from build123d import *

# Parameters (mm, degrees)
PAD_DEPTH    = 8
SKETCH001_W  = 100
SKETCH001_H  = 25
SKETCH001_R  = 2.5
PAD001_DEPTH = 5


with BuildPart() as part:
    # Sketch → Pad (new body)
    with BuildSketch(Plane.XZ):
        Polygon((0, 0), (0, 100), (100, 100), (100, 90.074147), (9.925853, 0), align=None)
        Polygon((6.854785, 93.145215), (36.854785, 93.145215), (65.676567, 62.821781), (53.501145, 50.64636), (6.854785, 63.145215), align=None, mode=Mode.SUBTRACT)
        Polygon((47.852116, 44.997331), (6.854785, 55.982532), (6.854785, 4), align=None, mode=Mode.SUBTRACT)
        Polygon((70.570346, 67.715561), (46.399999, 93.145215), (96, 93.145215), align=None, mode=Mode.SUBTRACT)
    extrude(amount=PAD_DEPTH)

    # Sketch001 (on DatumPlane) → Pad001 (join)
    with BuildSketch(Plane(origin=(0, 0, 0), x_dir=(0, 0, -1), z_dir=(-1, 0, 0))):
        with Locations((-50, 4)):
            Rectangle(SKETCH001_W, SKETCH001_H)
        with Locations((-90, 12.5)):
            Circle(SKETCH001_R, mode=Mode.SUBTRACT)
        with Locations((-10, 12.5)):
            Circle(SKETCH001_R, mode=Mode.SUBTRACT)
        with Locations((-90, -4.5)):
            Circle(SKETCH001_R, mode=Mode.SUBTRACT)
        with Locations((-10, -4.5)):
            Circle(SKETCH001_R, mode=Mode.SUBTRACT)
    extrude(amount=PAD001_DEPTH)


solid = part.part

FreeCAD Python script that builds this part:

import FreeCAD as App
import Part
import Sketcher
Q = App.Units.Quantity

doc = App.newDocument("Part")
body = doc.addObject("PartDesign::Body", "Body")

sketch1 = body.newObject("Sketcher::SketchObject", "Sketch")
sketch1.AttachmentSupport = (doc.getObject("XZ_Plane"), [""])
sketch1.MapMode = "FlatFace"
sketch1.addGeometry(Part.LineSegment(App.Vector(0, 100, 0), App.Vector(0, 0, 0)), False)
sketch1.addGeometry(Part.LineSegment(App.Vector(0, 0, 0), App.Vector(9.925853, 0, 0)), False)
sketch1.addGeometry(Part.LineSegment(App.Vector(9.925853, 0, 0), App.Vector(100, 90.074147, 0)), False)
sketch1.addGeometry(Part.LineSegment(App.Vector(100, 90.074147, 0), App.Vector(100, 100, 0)), False)
sketch1.addGeometry(Part.LineSegment(App.Vector(100, 100, 0), App.Vector(0, 100, 0)), False)
sketch1.addGeometry(Part.LineSegment(App.Vector(47.852116, 44.997331, 0), App.Vector(6.854785, 4, 0)), False)
sketch1.addGeometry(Part.LineSegment(App.Vector(6.854785, 4, 0), App.Vector(6.854785, 55.982532, 0)), False)
sketch1.addGeometry(Part.LineSegment(App.Vector(6.854785, 55.982532, 0), App.Vector(47.852116, 44.997331, 0)), False)
sketch1.addGeometry(Part.LineSegment(App.Vector(70.570346, 67.715561, 0), App.Vector(46.399999, 93.145215, 0)), False)
sketch1.addGeometry(Part.LineSegment(App.Vector(46.399999, 93.145215, 0), App.Vector(96, 93.145215, 0)), False)
sketch1.addGeometry(Part.LineSegment(App.Vector(96, 93.145215, 0), App.Vector(70.570346, 67.715561, 0)), False)
sketch1.addGeometry(Part.LineSegment(App.Vector(6.854785, 93.145215, 0), App.Vector(36.854785, 93.145215, 0)), False)
sketch1.addGeometry(Part.LineSegment(App.Vector(36.854785, 93.145215, 0), App.Vector(65.676567, 62.821781, 0)), False)
sketch1.addGeometry(Part.LineSegment(App.Vector(65.676567, 62.821781, 0), App.Vector(53.501145, 50.64636, 0)), False)
sketch1.addGeometry(Part.LineSegment(App.Vector(53.501145, 50.64636, 0), App.Vector(6.854785, 63.145215, 0)), False)
sketch1.addGeometry(Part.LineSegment(App.Vector(6.854785, 63.145215, 0), App.Vector(6.854785, 93.145215, 0)), False)
sketch1.addConstraint(Sketcher.Constraint("Coincident", 0, 2, 1, 1))
sketch1.addConstraint(Sketcher.Constraint("Coincident", 1, 2, 2, 1))
sketch1.addConstraint(Sketcher.Constraint("Coincident", 2, 2, 3, 1))
sketch1.addConstraint(Sketcher.Constraint("Coincident", 3, 2, 4, 1))
sketch1.addConstraint(Sketcher.Constraint("Coincident", 4, 2, 0, 1))
sketch1.addConstraint(Sketcher.Constraint("Coincident", 5, 2, 6, 1))
sketch1.addConstraint(Sketcher.Constraint("Coincident", 6, 2, 7, 1))
sketch1.addConstraint(Sketcher.Constraint("Coincident", 7, 2, 5, 1))
sketch1.addConstraint(Sketcher.Constraint("Coincident", 8, 2, 9, 1))
sketch1.addConstraint(Sketcher.Constraint("Coincident", 9, 2, 10, 1))
sketch1.addConstraint(Sketcher.Constraint("Coincident", 10, 2, 8, 1))
sketch1.addConstraint(Sketcher.Constraint("Coincident", 11, 2, 12, 1))
sketch1.addConstraint(Sketcher.Constraint("Coincident", 12, 2, 13, 1))
sketch1.addConstraint(Sketcher.Constraint("Coincident", 13, 2, 14, 1))
sketch1.addConstraint(Sketcher.Constraint("Coincident", 14, 2, 15, 1))
sketch1.addConstraint(Sketcher.Constraint("Coincident", 15, 2, 11, 1))
sketch1.addConstraint(Sketcher.Constraint("Vertical", 0))
sketch1.addConstraint(Sketcher.Constraint("Horizontal", 1))
sketch1.addConstraint(Sketcher.Constraint("Vertical", 3))
sketch1.addConstraint(Sketcher.Constraint("Horizontal", 4))
sketch1.addConstraint(Sketcher.Constraint("Vertical", 6))
sketch1.addConstraint(Sketcher.Constraint("Horizontal", 9))
sketch1.addConstraint(Sketcher.Constraint("Horizontal", 11))
sketch1.addConstraint(Sketcher.Constraint("Vertical", 15))
sketch1.addConstraint(Sketcher.Constraint("Coincident", 0, 2, -1, 1))
sketch1.addConstraint(Sketcher.Constraint("DistanceX", 4, 2, 4, 1, Q("100 mm")))
sketch1.addConstraint(Sketcher.Constraint("DistanceX", 11, 1, 11, 2, Q("30 mm")))
sketch1.addConstraint(Sketcher.Constraint("DistanceY", 0, 2, 0, 1, Q("100 mm")))
sketch1.addConstraint(Sketcher.Constraint("DistanceY", 15, 1, 15, 2, Q("30 mm")))
sketch1.addConstraint(Sketcher.Constraint("DistanceX", 9, 1, 9, 2, Q("49.600001 mm")))
sketch1.addConstraint(Sketcher.Constraint("DistanceY", -1, 1, 5, 2, Q("4 mm")))
sketch1.addConstraint(Sketcher.Constraint("DistanceX", -1, 1, 9, 2, Q("96 mm")))
sketch1.addConstraint(Sketcher.Constraint("DistanceX", 6, 2, 11, 2, Q("30 mm")))
sketch1.addConstraint(Sketcher.Constraint("Distance", 8, Q("35.083799 mm")))
sketch1.addConstraint(Sketcher.Constraint("DistanceY", 7, 2, 6, 2, Q("10.985201 mm")))
sketch1.addConstraint(Sketcher.Constraint("DistanceX", 13, 2, 10, 2, Q("17.069201 mm")))
sketch1.addConstraint(Sketcher.Constraint("DistanceY", 13, 2, 10, 2, Q("17.069201 mm")))
sketch1.addConstraint(Sketcher.Constraint("Distance", 2, Q("127.38408 mm")))
sketch1.addConstraint(Sketcher.Constraint("Distance", 5, Q("57.978982 mm")))
sketch1.addConstraint(Sketcher.Constraint("Distance", 7, Q("42.44356 mm")))
sketch1.addConstraint(Sketcher.Constraint("Distance", 10, Q("35.962962 mm")))
sketch1.addConstraint(Sketcher.Constraint("Distance", 12, Q("41.835461 mm")))
sketch1.addConstraint(Sketcher.Constraint("DistanceX", 1, 1, 1, 2, Q("9.925853 mm")))
sketch1.addConstraint(Sketcher.Constraint("DistanceY", -1, 1, 10, 2, Q("67.715561 mm")))
sketch1.addConstraint(Sketcher.Constraint("DistanceY", -1, 1, 12, 2, Q("62.821781 mm")))
sketch1.addConstraint(Sketcher.Constraint("DistanceX", 5, 2, 1, 2, Q("3.071068 mm")))
sketch1.addConstraint(Sketcher.Constraint("DistanceX", 12, 2, 10, 2, Q("4.893779 mm")))
pad1 = body.newObject("PartDesign::Pad", "Pad")
pad1.Profile = sketch1
pad1.Length = 8

sketch2 = body.newObject("Sketcher::SketchObject", "Sketch001")
sketch2.AttachmentSupport = (doc.getObject("YZ_Plane"), [""])
sketch2.MapMode = "FlatFace"
sketch2.addGeometry(Part.LineSegment(App.Vector(-16.5, 100, 0), App.Vector(8.5, 100, 0)), False)
sketch2.addGeometry(Part.LineSegment(App.Vector(8.5, 100, 0), App.Vector(8.5, 0, 0)), False)
sketch2.addGeometry(Part.LineSegment(App.Vector(8.5, 0, 0), App.Vector(-16.5, 0, 0)), False)
sketch2.addGeometry(Part.LineSegment(App.Vector(-16.5, 0, 0), App.Vector(-16.5, 100, 0)), False)
sketch2.addGeometry(Part.Circle(App.Vector(4.5, 90, 0), App.Vector(0, 0, 1), 2.5), False)
sketch2.addGeometry(Part.Circle(App.Vector(4.5, 10, 0), App.Vector(0, 0, 1), 2.5), False)
sketch2.addGeometry(Part.Circle(App.Vector(-12.5, 90, 0), App.Vector(0, 0, 1), 2.5), False)
sketch2.addGeometry(Part.Circle(App.Vector(-12.5, 10, 0), App.Vector(0, 0, 1), 2.5), False)
sketch2.addConstraint(Sketcher.Constraint("Coincident", 0, 2, 1, 1))
sketch2.addConstraint(Sketcher.Constraint("Coincident", 1, 2, 2, 1))
sketch2.addConstraint(Sketcher.Constraint("Coincident", 2, 2, 3, 1))
sketch2.addConstraint(Sketcher.Constraint("Coincident", 3, 2, 0, 1))
sketch2.addConstraint(Sketcher.Constraint("Horizontal", 0))
sketch2.addConstraint(Sketcher.Constraint("Vertical", 1))
sketch2.addConstraint(Sketcher.Constraint("Horizontal", 2))
sketch2.addConstraint(Sketcher.Constraint("Vertical", 3))
sketch2.addConstraint(Sketcher.Constraint("Equal", 4, 5))
sketch2.addConstraint(Sketcher.Constraint("Equal", 5, 6))
sketch2.addConstraint(Sketcher.Constraint("Equal", 6, 7))
sketch2.addConstraint(Sketcher.Constraint("PointOnObject", 1, 2, -1))
sketch2.addConstraint(Sketcher.Constraint("Horizontal", 4, 3, 6, 3))
sketch2.addConstraint(Sketcher.Constraint("Horizontal", 5, 3, 7, 3))
sketch2.addConstraint(Sketcher.Constraint("Vertical", 4, 3, 5, 3))
sketch2.addConstraint(Sketcher.Constraint("Vertical", 6, 3, 7, 3))
sketch2.addConstraint(Sketcher.Constraint("Diameter", 4, Q("5 mm")))
sketch2.addConstraint(Sketcher.Constraint("DistanceX", 0, 1, 0, 2, Q("25 mm")))
sketch2.addConstraint(Sketcher.Constraint("DistanceY", 1, 2, 1, 1, Q("100 mm")))
sketch2.addConstraint(Sketcher.Constraint("DistanceY", -1, 1, 4, 3, Q("90 mm")))
sketch2.addConstraint(Sketcher.Constraint("DistanceY", -1, 1, 5, 3, Q("10 mm")))
sketch2.addConstraint(Sketcher.Constraint("DistanceX", 6, 3, 4, 3, Q("17 mm")))
sketch2.addConstraint(Sketcher.Constraint("DistanceX", 4, 3, 0, 2, Q("4 mm")))
sketch2.addConstraint(Sketcher.Constraint("DistanceX", -1, 1, 4, 3, Q("4.5 mm")))
pad2 = body.newObject("PartDesign::Pad", "Pad001")
pad2.Profile = sketch2
pad2.Length = 5
pad2.Reversed = True

doc.recompute()
